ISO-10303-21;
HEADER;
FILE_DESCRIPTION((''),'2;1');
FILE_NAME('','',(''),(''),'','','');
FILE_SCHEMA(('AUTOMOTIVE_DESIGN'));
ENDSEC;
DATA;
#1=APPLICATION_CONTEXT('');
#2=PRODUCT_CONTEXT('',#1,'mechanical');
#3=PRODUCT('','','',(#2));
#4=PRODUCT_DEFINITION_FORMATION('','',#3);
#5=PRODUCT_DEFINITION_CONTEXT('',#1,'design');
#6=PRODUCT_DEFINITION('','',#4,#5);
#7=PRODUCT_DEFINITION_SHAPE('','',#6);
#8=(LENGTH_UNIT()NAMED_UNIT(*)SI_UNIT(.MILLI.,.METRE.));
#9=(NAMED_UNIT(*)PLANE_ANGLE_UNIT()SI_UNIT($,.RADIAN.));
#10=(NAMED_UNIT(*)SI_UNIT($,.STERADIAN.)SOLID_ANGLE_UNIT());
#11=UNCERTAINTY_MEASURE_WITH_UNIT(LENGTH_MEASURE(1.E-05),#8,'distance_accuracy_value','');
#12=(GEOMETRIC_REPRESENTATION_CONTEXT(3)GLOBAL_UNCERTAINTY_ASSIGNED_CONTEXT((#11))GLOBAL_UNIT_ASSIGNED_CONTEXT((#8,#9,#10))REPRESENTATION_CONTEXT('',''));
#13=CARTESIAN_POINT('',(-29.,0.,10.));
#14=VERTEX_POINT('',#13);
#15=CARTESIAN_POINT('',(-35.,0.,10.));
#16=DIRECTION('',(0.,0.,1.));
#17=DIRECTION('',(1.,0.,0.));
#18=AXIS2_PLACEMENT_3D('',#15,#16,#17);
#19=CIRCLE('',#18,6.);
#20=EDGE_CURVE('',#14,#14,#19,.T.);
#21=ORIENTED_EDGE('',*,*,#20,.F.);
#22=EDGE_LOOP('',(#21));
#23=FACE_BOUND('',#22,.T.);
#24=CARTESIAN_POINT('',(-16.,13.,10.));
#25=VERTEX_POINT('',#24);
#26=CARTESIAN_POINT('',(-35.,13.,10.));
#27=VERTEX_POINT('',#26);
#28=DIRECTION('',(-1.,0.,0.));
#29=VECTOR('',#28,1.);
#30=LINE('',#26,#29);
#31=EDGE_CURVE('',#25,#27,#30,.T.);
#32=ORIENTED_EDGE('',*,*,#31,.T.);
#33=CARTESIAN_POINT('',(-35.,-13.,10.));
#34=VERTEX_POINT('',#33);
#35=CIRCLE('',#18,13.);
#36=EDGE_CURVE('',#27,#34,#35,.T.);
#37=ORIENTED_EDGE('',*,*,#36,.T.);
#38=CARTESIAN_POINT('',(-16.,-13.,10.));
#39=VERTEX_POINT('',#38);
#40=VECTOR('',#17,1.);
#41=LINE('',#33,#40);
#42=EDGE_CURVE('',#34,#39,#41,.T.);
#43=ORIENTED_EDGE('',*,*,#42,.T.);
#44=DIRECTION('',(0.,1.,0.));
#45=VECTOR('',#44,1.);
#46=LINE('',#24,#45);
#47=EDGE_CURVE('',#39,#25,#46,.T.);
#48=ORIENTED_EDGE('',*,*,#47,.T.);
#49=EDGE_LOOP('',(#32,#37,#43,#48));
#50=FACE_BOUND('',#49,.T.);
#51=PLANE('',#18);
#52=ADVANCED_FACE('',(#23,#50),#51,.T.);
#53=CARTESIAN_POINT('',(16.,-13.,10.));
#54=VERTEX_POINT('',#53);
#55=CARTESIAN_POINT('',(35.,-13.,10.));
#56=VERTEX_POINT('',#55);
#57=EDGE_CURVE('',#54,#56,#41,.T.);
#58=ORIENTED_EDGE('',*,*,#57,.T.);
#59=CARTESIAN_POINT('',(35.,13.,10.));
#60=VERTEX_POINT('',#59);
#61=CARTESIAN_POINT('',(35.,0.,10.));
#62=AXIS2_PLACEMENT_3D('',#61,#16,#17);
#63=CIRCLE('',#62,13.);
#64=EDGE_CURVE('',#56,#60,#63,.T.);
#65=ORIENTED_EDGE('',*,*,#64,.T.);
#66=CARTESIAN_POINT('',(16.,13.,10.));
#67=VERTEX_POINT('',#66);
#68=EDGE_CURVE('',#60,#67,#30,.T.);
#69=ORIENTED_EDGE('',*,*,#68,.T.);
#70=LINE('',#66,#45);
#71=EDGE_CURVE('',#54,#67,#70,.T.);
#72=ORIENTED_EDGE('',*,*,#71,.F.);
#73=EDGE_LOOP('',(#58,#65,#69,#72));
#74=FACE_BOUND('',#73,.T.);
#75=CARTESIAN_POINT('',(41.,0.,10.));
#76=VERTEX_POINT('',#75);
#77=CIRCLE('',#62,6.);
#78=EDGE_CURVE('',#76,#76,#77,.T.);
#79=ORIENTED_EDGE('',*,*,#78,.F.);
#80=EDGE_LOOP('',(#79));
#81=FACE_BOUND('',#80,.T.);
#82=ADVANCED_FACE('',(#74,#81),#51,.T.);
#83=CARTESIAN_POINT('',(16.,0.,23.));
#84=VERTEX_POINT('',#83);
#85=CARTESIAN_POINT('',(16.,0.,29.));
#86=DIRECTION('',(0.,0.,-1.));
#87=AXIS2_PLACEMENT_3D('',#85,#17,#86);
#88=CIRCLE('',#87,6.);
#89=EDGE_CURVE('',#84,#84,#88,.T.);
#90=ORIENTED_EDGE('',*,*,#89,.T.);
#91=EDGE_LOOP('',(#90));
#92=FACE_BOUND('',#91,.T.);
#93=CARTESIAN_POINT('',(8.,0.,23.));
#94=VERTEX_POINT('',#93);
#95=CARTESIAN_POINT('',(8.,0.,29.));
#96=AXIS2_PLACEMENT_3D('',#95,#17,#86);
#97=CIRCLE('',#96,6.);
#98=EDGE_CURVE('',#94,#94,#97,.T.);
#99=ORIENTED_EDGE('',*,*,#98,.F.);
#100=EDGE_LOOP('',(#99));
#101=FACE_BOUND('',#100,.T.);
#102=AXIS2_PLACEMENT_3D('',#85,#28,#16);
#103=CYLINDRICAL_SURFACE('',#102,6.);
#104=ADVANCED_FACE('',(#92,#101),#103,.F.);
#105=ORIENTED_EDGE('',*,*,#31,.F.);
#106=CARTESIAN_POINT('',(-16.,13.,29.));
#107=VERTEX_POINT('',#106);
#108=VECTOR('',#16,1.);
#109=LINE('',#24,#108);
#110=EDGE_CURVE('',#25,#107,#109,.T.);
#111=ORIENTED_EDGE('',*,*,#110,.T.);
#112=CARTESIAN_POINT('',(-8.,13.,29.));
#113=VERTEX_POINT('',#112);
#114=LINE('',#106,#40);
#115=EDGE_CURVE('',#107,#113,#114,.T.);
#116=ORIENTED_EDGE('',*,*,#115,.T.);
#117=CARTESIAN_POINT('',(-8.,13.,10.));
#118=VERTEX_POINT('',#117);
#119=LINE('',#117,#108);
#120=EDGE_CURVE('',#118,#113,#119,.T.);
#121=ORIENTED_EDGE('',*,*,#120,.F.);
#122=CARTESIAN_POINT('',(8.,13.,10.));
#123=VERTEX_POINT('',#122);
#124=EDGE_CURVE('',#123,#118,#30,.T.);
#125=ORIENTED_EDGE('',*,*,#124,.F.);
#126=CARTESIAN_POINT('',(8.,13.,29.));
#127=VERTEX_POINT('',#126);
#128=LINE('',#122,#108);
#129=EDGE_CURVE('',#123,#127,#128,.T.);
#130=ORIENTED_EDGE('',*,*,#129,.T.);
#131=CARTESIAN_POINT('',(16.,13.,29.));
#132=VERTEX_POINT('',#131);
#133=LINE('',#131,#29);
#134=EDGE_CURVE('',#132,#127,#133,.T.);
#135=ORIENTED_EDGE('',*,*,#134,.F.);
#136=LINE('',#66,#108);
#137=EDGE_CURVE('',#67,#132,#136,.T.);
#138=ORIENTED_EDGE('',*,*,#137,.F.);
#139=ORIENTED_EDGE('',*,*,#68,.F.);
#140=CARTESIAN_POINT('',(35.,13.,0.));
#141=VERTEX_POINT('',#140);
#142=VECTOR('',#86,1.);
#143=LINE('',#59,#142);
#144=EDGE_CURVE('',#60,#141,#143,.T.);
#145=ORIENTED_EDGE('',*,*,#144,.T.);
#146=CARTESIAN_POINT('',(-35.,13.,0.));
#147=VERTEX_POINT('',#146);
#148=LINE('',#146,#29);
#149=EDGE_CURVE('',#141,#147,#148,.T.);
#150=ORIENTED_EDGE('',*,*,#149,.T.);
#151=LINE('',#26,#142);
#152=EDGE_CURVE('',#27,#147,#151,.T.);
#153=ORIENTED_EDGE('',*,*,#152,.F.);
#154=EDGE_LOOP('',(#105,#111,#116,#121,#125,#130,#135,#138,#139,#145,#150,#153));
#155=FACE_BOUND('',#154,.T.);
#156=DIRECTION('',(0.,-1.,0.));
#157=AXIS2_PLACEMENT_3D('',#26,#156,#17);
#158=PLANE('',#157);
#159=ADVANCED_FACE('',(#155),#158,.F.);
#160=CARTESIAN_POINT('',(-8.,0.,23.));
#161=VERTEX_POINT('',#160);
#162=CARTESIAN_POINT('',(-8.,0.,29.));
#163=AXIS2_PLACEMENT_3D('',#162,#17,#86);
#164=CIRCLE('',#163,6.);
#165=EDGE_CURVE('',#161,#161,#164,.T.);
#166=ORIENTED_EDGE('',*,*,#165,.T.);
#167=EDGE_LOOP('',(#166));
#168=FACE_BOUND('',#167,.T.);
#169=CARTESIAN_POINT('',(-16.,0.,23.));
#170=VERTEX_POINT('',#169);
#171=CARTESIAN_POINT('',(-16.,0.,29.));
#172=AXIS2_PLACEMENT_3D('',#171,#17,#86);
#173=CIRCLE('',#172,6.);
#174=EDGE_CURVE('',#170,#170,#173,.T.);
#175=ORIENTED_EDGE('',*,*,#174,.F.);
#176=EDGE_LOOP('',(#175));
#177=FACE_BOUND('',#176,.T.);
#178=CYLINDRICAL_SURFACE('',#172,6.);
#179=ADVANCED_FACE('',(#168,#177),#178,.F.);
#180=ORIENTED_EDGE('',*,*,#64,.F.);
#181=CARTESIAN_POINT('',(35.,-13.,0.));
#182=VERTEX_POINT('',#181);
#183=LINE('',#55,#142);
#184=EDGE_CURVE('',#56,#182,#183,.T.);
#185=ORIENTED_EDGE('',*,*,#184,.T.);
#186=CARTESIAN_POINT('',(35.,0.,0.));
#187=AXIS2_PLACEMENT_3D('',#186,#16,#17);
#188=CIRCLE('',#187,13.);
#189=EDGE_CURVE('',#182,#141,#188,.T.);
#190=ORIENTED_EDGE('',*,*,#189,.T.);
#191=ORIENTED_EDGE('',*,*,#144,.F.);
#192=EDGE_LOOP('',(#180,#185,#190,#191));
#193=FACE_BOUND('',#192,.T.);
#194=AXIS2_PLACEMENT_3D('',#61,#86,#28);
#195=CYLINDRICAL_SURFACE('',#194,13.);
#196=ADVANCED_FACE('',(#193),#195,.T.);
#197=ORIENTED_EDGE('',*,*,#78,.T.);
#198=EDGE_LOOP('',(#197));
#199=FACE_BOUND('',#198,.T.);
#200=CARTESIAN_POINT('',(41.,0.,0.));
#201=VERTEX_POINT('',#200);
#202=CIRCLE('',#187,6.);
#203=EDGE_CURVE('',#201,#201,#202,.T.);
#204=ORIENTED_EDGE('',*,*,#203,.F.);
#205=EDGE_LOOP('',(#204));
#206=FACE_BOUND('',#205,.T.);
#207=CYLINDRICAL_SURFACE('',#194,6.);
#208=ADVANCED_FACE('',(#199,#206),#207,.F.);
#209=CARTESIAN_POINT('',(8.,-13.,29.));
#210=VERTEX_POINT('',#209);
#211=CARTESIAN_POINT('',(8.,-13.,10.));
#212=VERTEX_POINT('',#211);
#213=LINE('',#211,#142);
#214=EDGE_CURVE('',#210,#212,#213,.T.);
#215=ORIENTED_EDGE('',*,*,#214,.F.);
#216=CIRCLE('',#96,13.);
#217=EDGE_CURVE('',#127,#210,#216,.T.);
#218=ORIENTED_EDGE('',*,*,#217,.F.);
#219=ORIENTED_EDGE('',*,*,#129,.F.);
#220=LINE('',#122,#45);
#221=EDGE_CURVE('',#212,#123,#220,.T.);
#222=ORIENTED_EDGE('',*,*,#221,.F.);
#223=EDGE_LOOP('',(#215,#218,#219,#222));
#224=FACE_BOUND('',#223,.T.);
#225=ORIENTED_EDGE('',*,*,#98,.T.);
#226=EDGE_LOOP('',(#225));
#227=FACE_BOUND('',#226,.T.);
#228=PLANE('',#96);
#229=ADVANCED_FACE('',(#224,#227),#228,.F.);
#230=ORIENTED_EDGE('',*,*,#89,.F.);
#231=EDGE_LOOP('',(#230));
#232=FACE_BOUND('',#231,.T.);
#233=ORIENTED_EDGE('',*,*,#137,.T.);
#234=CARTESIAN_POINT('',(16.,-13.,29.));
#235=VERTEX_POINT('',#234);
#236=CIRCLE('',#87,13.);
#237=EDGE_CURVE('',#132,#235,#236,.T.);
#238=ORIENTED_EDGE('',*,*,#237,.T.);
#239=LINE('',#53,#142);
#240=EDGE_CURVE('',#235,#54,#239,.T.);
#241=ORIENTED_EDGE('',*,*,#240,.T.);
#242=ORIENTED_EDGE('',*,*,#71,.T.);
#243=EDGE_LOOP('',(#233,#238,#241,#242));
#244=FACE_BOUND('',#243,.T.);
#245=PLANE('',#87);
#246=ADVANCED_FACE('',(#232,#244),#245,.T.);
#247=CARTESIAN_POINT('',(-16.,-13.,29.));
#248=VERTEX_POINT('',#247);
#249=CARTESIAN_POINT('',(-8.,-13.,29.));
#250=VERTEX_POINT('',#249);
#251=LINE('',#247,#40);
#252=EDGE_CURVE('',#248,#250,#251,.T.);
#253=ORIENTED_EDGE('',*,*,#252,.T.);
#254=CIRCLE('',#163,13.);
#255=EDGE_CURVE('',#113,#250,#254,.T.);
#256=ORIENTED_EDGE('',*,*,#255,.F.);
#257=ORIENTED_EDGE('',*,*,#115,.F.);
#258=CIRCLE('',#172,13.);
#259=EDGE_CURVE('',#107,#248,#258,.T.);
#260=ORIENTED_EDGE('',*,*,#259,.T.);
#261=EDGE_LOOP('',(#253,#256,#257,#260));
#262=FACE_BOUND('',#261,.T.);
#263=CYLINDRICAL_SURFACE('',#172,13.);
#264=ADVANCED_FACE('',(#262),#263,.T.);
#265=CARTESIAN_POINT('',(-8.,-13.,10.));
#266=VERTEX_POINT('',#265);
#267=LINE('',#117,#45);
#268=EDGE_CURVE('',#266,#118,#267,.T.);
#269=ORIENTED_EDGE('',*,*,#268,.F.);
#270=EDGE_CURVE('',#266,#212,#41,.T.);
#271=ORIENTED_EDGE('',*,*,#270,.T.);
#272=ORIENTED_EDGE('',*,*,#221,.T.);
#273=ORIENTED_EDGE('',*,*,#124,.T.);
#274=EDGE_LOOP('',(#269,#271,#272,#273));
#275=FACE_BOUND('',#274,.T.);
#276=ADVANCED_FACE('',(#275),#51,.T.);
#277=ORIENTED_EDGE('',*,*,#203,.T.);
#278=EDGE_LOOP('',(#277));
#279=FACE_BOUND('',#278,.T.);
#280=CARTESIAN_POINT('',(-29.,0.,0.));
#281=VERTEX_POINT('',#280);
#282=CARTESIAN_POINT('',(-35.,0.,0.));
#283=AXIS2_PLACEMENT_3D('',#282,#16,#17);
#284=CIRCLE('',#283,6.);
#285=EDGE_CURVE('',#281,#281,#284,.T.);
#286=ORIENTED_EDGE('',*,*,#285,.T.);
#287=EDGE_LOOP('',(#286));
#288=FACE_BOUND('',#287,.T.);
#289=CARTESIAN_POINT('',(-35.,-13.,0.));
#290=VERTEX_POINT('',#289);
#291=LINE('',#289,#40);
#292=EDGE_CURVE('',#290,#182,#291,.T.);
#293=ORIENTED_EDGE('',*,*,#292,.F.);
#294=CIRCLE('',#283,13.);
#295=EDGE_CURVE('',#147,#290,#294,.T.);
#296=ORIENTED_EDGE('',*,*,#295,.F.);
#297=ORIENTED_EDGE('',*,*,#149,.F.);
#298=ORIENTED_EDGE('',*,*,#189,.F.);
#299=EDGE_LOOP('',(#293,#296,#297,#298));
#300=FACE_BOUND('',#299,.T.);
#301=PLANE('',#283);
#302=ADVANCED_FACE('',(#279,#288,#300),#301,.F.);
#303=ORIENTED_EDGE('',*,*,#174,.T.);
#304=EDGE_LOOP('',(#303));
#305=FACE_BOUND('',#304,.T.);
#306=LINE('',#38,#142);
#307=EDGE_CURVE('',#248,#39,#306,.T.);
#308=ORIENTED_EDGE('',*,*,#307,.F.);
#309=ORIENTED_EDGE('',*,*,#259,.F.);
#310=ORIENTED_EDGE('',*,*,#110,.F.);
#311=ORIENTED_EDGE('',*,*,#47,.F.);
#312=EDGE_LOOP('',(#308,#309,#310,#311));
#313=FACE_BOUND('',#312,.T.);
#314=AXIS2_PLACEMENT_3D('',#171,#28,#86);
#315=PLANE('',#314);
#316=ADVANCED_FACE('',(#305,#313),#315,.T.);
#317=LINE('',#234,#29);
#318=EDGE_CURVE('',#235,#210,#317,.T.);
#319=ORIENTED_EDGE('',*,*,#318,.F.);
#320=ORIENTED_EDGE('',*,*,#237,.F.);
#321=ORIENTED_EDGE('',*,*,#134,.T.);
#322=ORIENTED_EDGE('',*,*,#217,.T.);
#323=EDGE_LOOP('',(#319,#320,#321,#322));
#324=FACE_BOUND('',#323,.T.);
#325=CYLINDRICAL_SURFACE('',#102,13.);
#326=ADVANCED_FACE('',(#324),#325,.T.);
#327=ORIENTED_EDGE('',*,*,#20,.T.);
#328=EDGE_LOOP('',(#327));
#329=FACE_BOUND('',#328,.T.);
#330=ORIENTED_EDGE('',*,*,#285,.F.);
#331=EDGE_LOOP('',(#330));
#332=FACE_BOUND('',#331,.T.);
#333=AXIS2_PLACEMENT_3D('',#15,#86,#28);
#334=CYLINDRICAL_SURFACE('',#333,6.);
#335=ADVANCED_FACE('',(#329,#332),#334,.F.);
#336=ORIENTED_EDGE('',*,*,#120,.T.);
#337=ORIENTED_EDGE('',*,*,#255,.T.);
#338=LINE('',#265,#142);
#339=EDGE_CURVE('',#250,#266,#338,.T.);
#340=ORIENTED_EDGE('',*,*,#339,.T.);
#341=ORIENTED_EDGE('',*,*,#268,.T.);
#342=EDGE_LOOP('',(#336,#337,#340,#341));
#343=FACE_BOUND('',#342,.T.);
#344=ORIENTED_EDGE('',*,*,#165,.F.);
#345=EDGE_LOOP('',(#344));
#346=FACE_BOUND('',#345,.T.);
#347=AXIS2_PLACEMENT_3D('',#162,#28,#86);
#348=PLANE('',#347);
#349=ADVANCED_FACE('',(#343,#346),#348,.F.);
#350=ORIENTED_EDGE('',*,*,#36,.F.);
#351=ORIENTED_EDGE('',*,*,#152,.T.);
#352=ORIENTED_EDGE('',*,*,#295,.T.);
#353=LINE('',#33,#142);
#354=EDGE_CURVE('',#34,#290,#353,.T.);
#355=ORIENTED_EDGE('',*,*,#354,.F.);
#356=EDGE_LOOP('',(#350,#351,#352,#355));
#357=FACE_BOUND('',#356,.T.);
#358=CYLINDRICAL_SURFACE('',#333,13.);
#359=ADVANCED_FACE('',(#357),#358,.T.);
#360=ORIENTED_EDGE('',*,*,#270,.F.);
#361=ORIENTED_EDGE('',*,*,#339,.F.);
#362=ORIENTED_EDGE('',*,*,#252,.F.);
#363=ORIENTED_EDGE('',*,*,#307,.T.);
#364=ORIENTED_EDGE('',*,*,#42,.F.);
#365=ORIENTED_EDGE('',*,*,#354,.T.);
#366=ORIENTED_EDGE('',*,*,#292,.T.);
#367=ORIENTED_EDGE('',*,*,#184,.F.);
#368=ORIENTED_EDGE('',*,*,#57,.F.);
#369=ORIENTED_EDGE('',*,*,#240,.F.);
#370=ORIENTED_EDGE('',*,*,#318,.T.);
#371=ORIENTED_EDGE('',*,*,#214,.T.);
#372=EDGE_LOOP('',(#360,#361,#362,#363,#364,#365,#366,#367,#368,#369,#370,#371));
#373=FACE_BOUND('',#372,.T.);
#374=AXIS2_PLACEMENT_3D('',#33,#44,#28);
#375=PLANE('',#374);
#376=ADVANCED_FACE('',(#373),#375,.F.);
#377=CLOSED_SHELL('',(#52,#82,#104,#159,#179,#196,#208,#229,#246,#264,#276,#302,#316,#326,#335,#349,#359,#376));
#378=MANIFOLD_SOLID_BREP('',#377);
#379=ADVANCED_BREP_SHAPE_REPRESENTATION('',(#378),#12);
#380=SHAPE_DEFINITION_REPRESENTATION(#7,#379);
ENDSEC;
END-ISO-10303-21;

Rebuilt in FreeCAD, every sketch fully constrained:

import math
import FreeCAD as App
import Part
import Sketcher

V = App.Vector

doc = App.newDocument("Part")
body = doc.addObject("PartDesign::Body", "Body")

# Sketch on XY plane
sketch1 = doc.addObject("Sketcher::SketchObject", "Sketch")
body.addObject(sketch1)
sketch1.AttachmentSupport = (doc.XY_Plane, [""])
sketch1.MapMode = "FlatFace"
sketch1.addGeometry([
    Part.LineSegment(V(35, 13, 0), V(-35, 13, 0)),  # 0
    Part.ArcOfCircle(Part.Circle(V(-35, 0, 0), V(0, 0, 1), 13), math.radians(90), math.radians(270)),  # 1
    Part.LineSegment(V(-35, -13, 0), V(35, -13, 0)),  # 2
    Part.ArcOfCircle(Part.Circle(V(35, 0, 0), V(0, 0, 1), 13), math.radians(-90), math.radians(90)),  # 3
    Part.Circle(V(35, 0, 0), V(0, 0, 1), 6),  # 4
    Part.Circle(V(-35, 0, 0), V(0, 0, 1), 6),  # 5
], False)
sketch1.addConstraint([
    Sketcher.Constraint("Tangent", 0, 2, 1, 1),
    Sketcher.Constraint("Tangent", 1, 2, 2, 1),
    Sketcher.Constraint("Tangent", 2, 2, 3, 1),
    Sketcher.Constraint("Tangent", 3, 2, 0, 1),
    Sketcher.Constraint("Horizontal", 0),
    Sketcher.Constraint("Horizontal", 2),
    Sketcher.Constraint("Coincident", 4, 3, 3, 3),
    Sketcher.Constraint("Coincident", 5, 3, 1, 3),
    Sketcher.Constraint("Equal", 4, 5),
    Sketcher.Constraint("Symmetric", 1, 3, 3, 3, -1, 1),
    Sketcher.Constraint("Diameter", 4, 12.0),
    Sketcher.Constraint("Radius", 1, 13.0),
    Sketcher.Constraint("DistanceX", 0, 2, 0, 1, 70.0),
])
pad1 = doc.addObject("PartDesign::Pad", "Pad")
body.addObject(pad1)
pad1.Profile = sketch1
pad1.Length = 10

# Sketch on YZ plane
sketch2 = doc.addObject("Sketcher::SketchObject", "Sketch001")
body.addObject(sketch2)
sketch2.AttachmentSupport = (doc.YZ_Plane, [""])
sketch2.MapMode = "FlatFace"
sketch2.AttachmentOffset = App.Placement(V(0, 0, 8), App.Rotation())
sketch2.addGeometry([
    Part.LineSegment(V(-13, 29, 0), V(-13, 10, 0)),  # 0
    Part.LineSegment(V(-13, 10, 0), V(13, 10, 0)),  # 1
    Part.LineSegment(V(13, 10, 0), V(13, 29, 0)),  # 2
    Part.ArcOfCircle(Part.Circle(V(0, 29, 0), V(0, 0, 1), 13), math.radians(0), math.radians(180)),  # 3
    Part.Circle(V(0, 29, 0), V(0, 0, 1), 6),  # 4
], False)
sketch2.addConstraint([
    Sketcher.Constraint("Coincident", 0, 2, 1, 1),
    Sketcher.Constraint("Coincident", 1, 2, 2, 1),
    Sketcher.Constraint("Tangent", 2, 2, 3, 1),
    Sketcher.Constraint("Tangent", 3, 2, 0, 1),
    Sketcher.Constraint("Vertical", 0),
    Sketcher.Constraint("Horizontal", 1),
    Sketcher.Constraint("Vertical", 2),
    Sketcher.Constraint("Coincident", 4, 3, 3, 3),
    Sketcher.Constraint("PointOnObject", 3, 3, -2),
    Sketcher.Constraint("Diameter", 4, 12.0),
    Sketcher.Constraint("Radius", 3, 13.0),
    Sketcher.Constraint("DistanceY", 0, 2, 0, 1, 19.0),
    Sketcher.Constraint("DistanceY", -1, 1, 3, 3, 29.0),
])
pad2 = doc.addObject("PartDesign::Pad", "Pad001")
body.addObject(pad2)
pad2.Profile = sketch2
pad2.Length = 8
doc.recompute()

mirrored = doc.addObject("PartDesign::Mirrored", "Mirrored")
body.addObject(mirrored)
mirrored.Originals = [pad2]
mirrored.MirrorPlane = (doc.YZ_Plane, [""])
body.Tip = mirrored

doc.recompute()
